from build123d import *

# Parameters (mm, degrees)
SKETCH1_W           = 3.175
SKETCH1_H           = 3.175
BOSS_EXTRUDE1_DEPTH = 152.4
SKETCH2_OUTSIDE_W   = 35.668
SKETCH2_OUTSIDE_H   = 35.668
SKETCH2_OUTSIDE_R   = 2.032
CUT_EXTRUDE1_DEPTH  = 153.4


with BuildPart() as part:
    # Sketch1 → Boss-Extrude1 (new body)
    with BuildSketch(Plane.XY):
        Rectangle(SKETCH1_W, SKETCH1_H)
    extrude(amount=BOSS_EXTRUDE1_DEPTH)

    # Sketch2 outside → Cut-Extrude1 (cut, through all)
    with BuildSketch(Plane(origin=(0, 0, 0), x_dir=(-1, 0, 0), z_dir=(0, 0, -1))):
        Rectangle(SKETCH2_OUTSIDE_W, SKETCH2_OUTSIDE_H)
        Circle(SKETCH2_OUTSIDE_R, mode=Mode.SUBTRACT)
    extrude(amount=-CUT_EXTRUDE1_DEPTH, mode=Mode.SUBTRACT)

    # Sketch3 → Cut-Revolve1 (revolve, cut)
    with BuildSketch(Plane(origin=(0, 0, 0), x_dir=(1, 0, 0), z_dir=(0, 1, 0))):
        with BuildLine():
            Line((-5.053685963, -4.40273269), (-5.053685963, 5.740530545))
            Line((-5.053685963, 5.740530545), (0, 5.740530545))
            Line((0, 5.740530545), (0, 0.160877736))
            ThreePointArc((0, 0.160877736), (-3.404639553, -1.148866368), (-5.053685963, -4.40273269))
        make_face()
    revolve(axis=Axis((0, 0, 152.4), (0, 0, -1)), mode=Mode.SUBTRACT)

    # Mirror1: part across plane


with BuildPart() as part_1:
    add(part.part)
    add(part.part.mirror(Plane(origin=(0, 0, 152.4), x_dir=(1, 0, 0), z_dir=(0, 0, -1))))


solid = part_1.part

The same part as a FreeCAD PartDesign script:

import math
import FreeCAD as App
import Part
import Sketcher
Q = App.Units.Quantity


def add_polygon(sketch, points):
    """Adds a closed chain of lines whose ends are joined by coincident constraints."""
    first, n = sketch.GeometryCount, len(points)
    for a, b in zip(points, points[1:] + points[:1]):
        sketch.addGeometry(Part.LineSegment(App.Vector(*a, 0), App.Vector(*b, 0)), False)
    for i in range(n):
        sketch.addConstraint(Sketcher.Constraint("Coincident", first + i, 2, first + (i + 1) % n, 1))

doc = App.newDocument("Part")
body = doc.addObject("PartDesign::Body", "Body")

# Sketch on XY plane
sketch1 = doc.addObject("Sketcher::SketchObject", "Sketch")
body.addObject(sketch1)
sketch1.AttachmentSupport = (doc.XY_Plane, [""])
sketch1.MapMode = "FlatFace"
add_polygon(sketch1, [(-1.6, 1.6), (-1.6, -1.6), (1.6, -1.6), (1.6, 1.6)])  # lines 0-3
sketch1.addConstraint(Sketcher.Constraint("Vertical", 0))
sketch1.addConstraint(Sketcher.Constraint("Horizontal", 1))
sketch1.addConstraint(Sketcher.Constraint("Vertical", 2))
sketch1.addConstraint(Sketcher.Constraint("Horizontal", 3))
sketch1.addConstraint(Sketcher.Constraint("Symmetric", 0, 2, 2, 2, -1, 1))
sketch1.addConstraint(Sketcher.Constraint("Equal", 3, 0))
sketch1.addConstraint(Sketcher.Constraint("DistanceX", 1, 1, 1, 2, Q("0.125 in")))
pad1 = doc.addObject("PartDesign::Pad", "Pad")
body.addObject(pad1)
pad1.Profile = sketch1
pad1.Length = Q("6 in")

# Sketch on XY plane
sketch2 = doc.addObject("Sketcher::SketchObject", "Sketch001")
body.addObject(sketch2)
sketch2.AttachmentSupport = (doc.XY_Plane, [""])
sketch2.MapMode = "FlatFace"
add_polygon(sketch2, [(17.8, 17.8), (17.8, -17.8), (-17.8, -17.8), (-17.8, 17.8)])  # lines 0-3
sketch2.addGeometry(Part.Circle(App.Vector(0, 0, 0), App.Vector(0, 0, 1), 2), False)  # 4
sketch2.addConstraint(Sketcher.Constraint("Vertical", 0))
sketch2.addConstraint(Sketcher.Constraint("Horizontal", 1))
sketch2.addConstraint(Sketcher.Constraint("Vertical", 2))
sketch2.addConstraint(Sketcher.Constraint("Horizontal", 3))
sketch2.addConstraint(Sketcher.Constraint("Coincident", 4, 3, -1, 1))
sketch2.addConstraint(Sketcher.Constraint("Symmetric", 0, 2, 2, 2, -1, 1))
sketch2.addConstraint(Sketcher.Constraint("Equal", 3, 0))
sketch2.addConstraint(Sketcher.Constraint("Diameter", 4, Q("0.16 in")))
sketch2.addConstraint(Sketcher.Constraint("DistanceX", 1, 2, 1, 1, 35.668))
pocket1 = doc.addObject("PartDesign::Pocket", "Pocket")
body.addObject(pocket1)
pocket1.Profile = sketch2
pocket1.Type = "ThroughAll"
pocket1.Reversed = True

# Sketch on XZ plane
sketch3 = doc.addObject("Sketcher::SketchObject", "Sketch002")
body.addObject(sketch3)
sketch3.AttachmentSupport = (doc.XZ_Plane, [""])
sketch3.MapMode = "FlatFace"
sketch3.addGeometry(Part.LineSegment(App.Vector(-5, -6, 0), App.Vector(-5, 4, 0)), False)
sketch3.addGeometry(Part.ArcOfCircle(Part.Circle(App.Vector(0, 5, 0), App.Vector(0, 0, 1), 5), math.radians(-174), math.radians(-90)), False)
sketch3.addGeometry(Part.LineSegment(App.Vector(0, 0, 0), App.Vector(0, -6, 0)), False)
sketch3.addGeometry(Part.LineSegment(App.Vector(0, -6, 0), App.Vector(-5, -6, 0)), False)
sketch3.addConstraint(Sketcher.Constraint("Coincident", 0, 2, 1, 1))
sketch3.addConstraint(Sketcher.Constraint("Coincident", 1, 2, 2, 1))
sketch3.addConstraint(Sketcher.Constraint("Coincident", 2, 2, 3, 1))
sketch3.addConstraint(Sketcher.Constraint("Coincident", 3, 2, 0, 1))
sketch3.addConstraint(Sketcher.Constraint("Vertical", 0))
sketch3.addConstraint(Sketcher.Constraint("Vertical", 2))
sketch3.addConstraint(Sketcher.Constraint("Horizontal", 3))
sketch3.addConstraint(Sketcher.Constraint("PointOnObject", 1, 3, -2))
sketch3.addConstraint(Sketcher.Constraint("PointOnObject", 1, 2, -2))
sketch3.addConstraint(Sketcher.Constraint("Radius", 1, Q("0.2 in")))
sketch3.addConstraint(Sketcher.Constraint("DistanceX", 3, 2, 3, 1, 5.053686))
sketch3.addConstraint(Sketcher.Constraint("DistanceY", 0, 1, 0, 2, 10.143263))
sketch3.addConstraint(Sketcher.Constraint("DistanceY", 2, 2, -1, 1, 5.740531))
groove = doc.addObject("PartDesign::Groove", "Groove")
body.addObject(groove)
groove.Profile = sketch3
groove.ReferenceAxis = (sketch3, ["V_Axis"])
groove.Angle = 360
body2 = doc.addObject("PartDesign::Body", "Body001")
doc.recompute()

body2.BaseFeature = body
doc.recompute()

mirroring = doc.addObject("Part::Mirroring", "Mirroring")
mirroring.Source = body
mirroring.Base = App.Vector(0, 0, 152.4)
mirroring.Normal = App.Vector(0, 0, -1)
body3 = doc.addObject("PartDesign::Body", "Body002")
body3.BaseFeature = mirroring
boolean = doc.addObject("PartDesign::Boolean", "Boolean")
body2.addObject(boolean)
boolean.Type = "Fuse"
boolean.addObjects([body3])
doc.recompute()
mirroring.Visibility = False

doc.recompute()
